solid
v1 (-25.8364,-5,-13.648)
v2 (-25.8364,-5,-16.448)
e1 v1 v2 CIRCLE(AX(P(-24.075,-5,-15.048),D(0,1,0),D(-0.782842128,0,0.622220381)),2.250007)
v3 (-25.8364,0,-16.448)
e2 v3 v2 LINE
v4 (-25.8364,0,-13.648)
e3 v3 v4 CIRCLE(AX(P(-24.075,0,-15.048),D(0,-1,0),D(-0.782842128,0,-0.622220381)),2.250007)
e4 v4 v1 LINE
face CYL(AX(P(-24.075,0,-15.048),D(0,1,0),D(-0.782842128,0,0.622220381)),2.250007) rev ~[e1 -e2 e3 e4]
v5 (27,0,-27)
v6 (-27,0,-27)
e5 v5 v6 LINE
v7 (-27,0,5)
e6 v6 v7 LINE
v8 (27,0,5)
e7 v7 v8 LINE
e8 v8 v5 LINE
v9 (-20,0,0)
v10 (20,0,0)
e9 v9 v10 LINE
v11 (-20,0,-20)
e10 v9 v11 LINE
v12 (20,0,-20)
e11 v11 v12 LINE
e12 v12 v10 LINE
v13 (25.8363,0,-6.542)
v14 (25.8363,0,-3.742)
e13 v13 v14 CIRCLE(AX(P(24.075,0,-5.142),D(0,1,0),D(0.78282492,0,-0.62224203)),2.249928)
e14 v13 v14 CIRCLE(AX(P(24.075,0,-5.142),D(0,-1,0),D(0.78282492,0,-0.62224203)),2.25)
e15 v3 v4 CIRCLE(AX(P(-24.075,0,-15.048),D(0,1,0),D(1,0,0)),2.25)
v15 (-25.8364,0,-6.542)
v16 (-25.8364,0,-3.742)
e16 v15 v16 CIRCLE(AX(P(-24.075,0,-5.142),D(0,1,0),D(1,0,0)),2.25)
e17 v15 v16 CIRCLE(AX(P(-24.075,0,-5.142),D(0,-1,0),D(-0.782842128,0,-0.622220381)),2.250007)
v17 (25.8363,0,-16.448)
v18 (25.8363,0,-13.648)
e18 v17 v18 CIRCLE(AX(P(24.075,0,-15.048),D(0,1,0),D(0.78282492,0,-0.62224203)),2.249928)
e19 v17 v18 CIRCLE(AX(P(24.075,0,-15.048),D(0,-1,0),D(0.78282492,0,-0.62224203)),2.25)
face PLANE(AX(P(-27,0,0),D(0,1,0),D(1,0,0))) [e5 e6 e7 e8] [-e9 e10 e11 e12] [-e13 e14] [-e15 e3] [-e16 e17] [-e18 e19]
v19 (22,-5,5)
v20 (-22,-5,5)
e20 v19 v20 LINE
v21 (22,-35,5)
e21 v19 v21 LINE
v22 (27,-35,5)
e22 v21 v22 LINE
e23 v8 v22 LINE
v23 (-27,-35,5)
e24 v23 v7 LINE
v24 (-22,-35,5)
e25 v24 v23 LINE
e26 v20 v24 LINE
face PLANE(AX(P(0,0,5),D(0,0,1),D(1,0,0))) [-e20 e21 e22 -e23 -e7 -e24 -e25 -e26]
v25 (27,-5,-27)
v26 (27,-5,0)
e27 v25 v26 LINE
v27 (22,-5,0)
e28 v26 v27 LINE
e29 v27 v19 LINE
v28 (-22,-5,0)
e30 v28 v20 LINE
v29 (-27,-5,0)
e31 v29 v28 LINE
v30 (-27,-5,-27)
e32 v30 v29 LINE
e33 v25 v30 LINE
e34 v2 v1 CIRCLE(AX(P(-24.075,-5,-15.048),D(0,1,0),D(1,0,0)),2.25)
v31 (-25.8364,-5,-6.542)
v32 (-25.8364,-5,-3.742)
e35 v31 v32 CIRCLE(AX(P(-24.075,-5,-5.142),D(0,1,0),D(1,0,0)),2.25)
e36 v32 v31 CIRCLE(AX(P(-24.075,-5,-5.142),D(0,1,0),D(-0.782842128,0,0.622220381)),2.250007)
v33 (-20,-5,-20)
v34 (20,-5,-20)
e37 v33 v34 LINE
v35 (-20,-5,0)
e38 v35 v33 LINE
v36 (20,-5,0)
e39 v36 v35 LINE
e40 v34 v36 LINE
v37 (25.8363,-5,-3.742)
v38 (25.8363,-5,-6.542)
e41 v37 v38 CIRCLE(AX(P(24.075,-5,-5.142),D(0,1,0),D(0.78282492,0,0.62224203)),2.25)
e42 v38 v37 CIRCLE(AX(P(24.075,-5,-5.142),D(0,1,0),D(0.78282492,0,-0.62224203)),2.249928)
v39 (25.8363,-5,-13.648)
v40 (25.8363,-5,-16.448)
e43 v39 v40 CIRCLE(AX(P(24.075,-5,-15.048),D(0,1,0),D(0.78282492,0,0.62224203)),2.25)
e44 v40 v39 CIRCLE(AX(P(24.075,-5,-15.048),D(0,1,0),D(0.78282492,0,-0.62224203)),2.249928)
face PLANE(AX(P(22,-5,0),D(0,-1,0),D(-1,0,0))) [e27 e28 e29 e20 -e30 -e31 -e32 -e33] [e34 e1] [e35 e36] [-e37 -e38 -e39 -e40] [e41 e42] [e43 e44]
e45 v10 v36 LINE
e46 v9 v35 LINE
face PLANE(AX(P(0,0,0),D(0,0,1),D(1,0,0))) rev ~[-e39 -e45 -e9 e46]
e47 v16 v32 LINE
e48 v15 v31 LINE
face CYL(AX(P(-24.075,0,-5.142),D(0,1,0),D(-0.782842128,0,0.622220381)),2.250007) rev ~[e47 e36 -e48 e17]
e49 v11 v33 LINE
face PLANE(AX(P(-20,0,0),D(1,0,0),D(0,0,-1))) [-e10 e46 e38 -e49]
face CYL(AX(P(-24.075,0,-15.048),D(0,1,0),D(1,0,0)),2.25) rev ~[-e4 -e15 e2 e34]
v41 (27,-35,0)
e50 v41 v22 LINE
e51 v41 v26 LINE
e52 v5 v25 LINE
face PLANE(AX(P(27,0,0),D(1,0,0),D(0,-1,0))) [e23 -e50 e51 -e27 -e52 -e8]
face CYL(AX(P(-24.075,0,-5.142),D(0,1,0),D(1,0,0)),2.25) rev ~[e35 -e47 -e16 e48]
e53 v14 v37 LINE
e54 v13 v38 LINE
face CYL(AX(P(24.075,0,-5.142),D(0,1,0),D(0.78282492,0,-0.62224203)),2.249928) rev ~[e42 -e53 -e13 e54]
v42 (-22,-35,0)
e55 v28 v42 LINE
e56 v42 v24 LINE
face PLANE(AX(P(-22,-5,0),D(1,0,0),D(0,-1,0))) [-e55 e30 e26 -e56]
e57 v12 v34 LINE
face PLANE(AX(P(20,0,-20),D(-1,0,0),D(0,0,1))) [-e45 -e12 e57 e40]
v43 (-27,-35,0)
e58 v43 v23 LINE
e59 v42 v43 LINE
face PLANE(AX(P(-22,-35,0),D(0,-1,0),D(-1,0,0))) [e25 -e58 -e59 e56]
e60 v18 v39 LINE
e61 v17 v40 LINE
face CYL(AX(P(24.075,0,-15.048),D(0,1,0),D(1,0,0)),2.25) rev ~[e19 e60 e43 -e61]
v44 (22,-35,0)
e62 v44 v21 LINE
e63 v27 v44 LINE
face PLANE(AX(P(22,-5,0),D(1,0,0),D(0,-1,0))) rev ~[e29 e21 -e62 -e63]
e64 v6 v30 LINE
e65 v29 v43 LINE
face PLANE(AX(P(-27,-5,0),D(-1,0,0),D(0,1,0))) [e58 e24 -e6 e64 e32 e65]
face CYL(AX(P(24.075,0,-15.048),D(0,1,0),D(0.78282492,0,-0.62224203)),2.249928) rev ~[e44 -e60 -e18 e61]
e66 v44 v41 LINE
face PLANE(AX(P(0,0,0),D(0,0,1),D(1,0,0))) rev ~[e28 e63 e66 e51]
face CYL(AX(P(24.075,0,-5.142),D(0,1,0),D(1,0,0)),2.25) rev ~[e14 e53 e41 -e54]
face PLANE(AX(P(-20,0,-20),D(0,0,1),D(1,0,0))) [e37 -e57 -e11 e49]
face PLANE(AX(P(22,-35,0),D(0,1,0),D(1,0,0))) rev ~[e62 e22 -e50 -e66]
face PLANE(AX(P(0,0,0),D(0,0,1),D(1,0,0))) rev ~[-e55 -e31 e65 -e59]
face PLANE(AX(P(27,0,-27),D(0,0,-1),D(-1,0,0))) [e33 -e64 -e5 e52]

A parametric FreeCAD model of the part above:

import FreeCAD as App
import Part
import Sketcher


def add_polygon(sketch, points):
    """Adds a closed chain of lines whose ends are joined by coincident constraints."""
    first, n = sketch.GeometryCount, len(points)
    for a, b in zip(points, points[1:] + points[:1]):
        sketch.addGeometry(Part.LineSegment(App.Vector(*a, 0), App.Vector(*b, 0)), False)
    for i in range(n):
        sketch.addConstraint(Sketcher.Constraint("Coincident", first + i, 2, first + (i + 1) % n, 1))

doc = App.newDocument("Part")
body = doc.addObject("PartDesign::Body", "Body")

sketch1 = doc.addObject("Sketcher::SketchObject", "Sketch")
body.addObject(sketch1)
sketch1.AttachmentSupport = (doc.XY_Plane, [""])
sketch1.MapMode = "FlatFace"
add_polygon(sketch1, [(27, 0), (-27, 0), (-27, -35), (-22, -35), (-22, -5), (22, -5), (22, -35), (27, -35)])
sketch1.addConstraint([
    Sketcher.Constraint("Horizontal", 0),
    Sketcher.Constraint("Vertical", 1),
    Sketcher.Constraint("Horizontal", 2),
    Sketcher.Constraint("Vertical", 3),
    Sketcher.Constraint("Horizontal", 4),
    Sketcher.Constraint("Vertical", 5),
    Sketcher.Constraint("Horizontal", 6),
    Sketcher.Constraint("Vertical", 7),
    Sketcher.Constraint("Symmetric", 0, 2, 7, 2, -1, 1),
    Sketcher.Constraint("Symmetric", 2, 2, 5, 2, -2),
    Sketcher.Constraint("DistanceX", 0, 2, 0, 1, 54.0),
    Sketcher.Constraint("DistanceX", 2, 1, 2, 2, 5.0),
    Sketcher.Constraint("DistanceY", 1, 2, 1, 1, 35.0),
    Sketcher.Constraint("DistanceY", 3, 2, -1, 1, 5.0),
])
pad1 = doc.addObject("PartDesign::Pad", "Pad")
body.addObject(pad1)
pad1.Profile = sketch1
pad1.Length = 5

sketch2 = doc.addObject("Sketcher::SketchObject", "Sketch001")
body.addObject(sketch2)
sketch2.AttachmentSupport = (doc.XZ_Plane, [""])
sketch2.MapMode = "FlatFace"
add_polygon(sketch2, [(-27, 0), (-20, 0), (-20, -20), (20, -20), (20, 0), (27, 0), (27, -27), (-27, -27)])
sketch2.addConstraint([
    Sketcher.Constraint("Horizontal", 0),
    Sketcher.Constraint("Vertical", 1),
    Sketcher.Constraint("Horizontal", 2),
    Sketcher.Constraint("Vertical", 3),
    Sketcher.Constraint("Horizontal", 4),
    Sketcher.Constraint("Vertical", 5),
    Sketcher.Constraint("Horizontal", 6),
    Sketcher.Constraint("Vertical", 7),
    Sketcher.Constraint("Symmetric", 0, 2, 3, 2, -1, 1),
    Sketcher.Constraint("Symmetric", 4, 2, 7, 2, -2),
    Sketcher.Constraint("DistanceX", 0, 1, 0, 2, 7.0),
    Sketcher.Constraint("DistanceY", 1, 2, 1, 1, 20.0),
    Sketcher.Constraint("DistanceX", 0, 2, -1, 1, 20.0),
    Sketcher.Constraint("DistanceY", 5, 2, 2, 2, 7.0),
])
pad2 = doc.addObject("PartDesign::Pad", "Pad001")
body.addObject(pad2)
pad2.Profile = sketch2
pad2.Length = 5

sketch3 = doc.addObject("Sketcher::SketchObject", "Sketch002")
body.addObject(sketch3)
sketch3.AttachmentSupport = (doc.XZ_Plane, [""])
sketch3.MapMode = "FlatFace"
sketch3.addGeometry([
    Part.Circle(App.Vector(24.1, -15, 0), App.Vector(0, 0, 1), 2.2),
    Part.Circle(App.Vector(24.1, -5.1, 0), App.Vector(0, 0, 1), 2.2),
    Part.Circle(App.Vector(-24.1, -5.1, 0), App.Vector(0, 0, 1), 2.3),
    Part.Circle(App.Vector(-24.1, -15, 0), App.Vector(0, 0, 1), 2.3),
], False)
sketch3.addConstraint([
    Sketcher.Constraint("Equal", 0, 1),
    Sketcher.Constraint("Equal", 1, 2),
    Sketcher.Constraint("Equal", 2, 3),
    Sketcher.Constraint("Symmetric", 1, 3, 2, 3, -2),
    Sketcher.Constraint("Symmetric", 0, 3, 3, 3, -2),
    Sketcher.Constraint("Vertical", 0, 3, 1, 3),
    Sketcher.Constraint("Diameter", 2, 4.5),
    Sketcher.Constraint("DistanceX", 2, 3, 1, 3, 48.15),
    Sketcher.Constraint("DistanceY", 0, 3, -1, 1, 15.048),
    Sketcher.Constraint("DistanceY", 1, 3, -1, 1, 5.142),
])
pocket1 = doc.addObject("PartDesign::Pocket", "Pocket")
body.addObject(pocket1)
pocket1.Profile = sketch3
pocket1.Length = 5
pocket1.Reversed = True

doc.recompute()
